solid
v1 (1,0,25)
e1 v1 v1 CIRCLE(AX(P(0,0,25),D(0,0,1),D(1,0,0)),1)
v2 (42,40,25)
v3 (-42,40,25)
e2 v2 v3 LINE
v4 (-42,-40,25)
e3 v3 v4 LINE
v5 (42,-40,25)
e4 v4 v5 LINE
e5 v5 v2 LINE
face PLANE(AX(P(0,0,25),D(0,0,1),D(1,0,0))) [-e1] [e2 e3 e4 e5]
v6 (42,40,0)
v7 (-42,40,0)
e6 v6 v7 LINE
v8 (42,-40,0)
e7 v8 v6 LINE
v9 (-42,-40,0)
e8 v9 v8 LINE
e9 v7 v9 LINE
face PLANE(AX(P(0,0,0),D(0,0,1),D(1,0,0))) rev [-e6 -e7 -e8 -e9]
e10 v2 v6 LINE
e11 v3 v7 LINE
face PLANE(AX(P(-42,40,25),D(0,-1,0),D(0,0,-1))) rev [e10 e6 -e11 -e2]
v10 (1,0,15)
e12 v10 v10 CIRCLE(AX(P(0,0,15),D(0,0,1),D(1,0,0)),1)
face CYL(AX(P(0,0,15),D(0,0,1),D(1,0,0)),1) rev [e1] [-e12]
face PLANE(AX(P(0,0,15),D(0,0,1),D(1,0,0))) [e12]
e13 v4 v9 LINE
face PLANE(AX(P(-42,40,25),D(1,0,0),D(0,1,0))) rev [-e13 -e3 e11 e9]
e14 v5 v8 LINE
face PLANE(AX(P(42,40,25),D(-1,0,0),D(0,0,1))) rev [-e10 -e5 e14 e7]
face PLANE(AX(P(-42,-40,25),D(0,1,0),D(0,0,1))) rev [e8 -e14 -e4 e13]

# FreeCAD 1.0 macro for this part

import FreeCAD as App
import Part
import Sketcher
Q = App.Units.Quantity

doc = App.newDocument("Part")
body = doc.addObject("PartDesign::Body", "Body")

sketch1 = body.newObject("Sketcher::SketchObject", "Sketch")
sketch1.AttachmentSupport = (doc.getObject("XY_Plane"), [""])
sketch1.MapMode = "FlatFace"
sketch1.addGeometry([
    Part.LineSegment(App.Vector(-42, 40, 0), App.Vector(-42, -40, 0)),
    Part.LineSegment(App.Vector(-42, -40, 0), App.Vector(42, -40, 0)),
    Part.LineSegment(App.Vector(42, -40, 0), App.Vector(42, 40, 0)),
    Part.LineSegment(App.Vector(42, 40, 0), App.Vector(-42, 40, 0)),
], False)
sketch1.addConstraint([
    Sketcher.Constraint("Coincident", 0, 2, 1, 1),
    Sketcher.Constraint("Coincident", 1, 2, 2, 1),
    Sketcher.Constraint("Coincident", 2, 2, 3, 1),
    Sketcher.Constraint("Coincident", 3, 2, 0, 1),
    Sketcher.Constraint("Vertical", 0),
    Sketcher.Constraint("Horizontal", 1),
    Sketcher.Constraint("Vertical", 2),
    Sketcher.Constraint("Horizontal", 3),
    Sketcher.Constraint("Symmetric", 0, 2, 2, 2, -1, 1),
    Sketcher.Constraint("DistanceX", 1, 1, 1, 2, Q("84 mm")),
    Sketcher.Constraint("DistanceY", 0, 2, 0, 1, Q("80 mm")),
])
pad1 = body.newObject("PartDesign::Pad", "Pad")
pad1.Profile = sketch1
pad1.Length = 25

sketch2 = body.newObject("Sketcher::SketchObject", "Sketch001")
sketch2.AttachmentSupport = (doc.getObject("XY_Plane"), [""])
sketch2.MapMode = "FlatFace"
sketch2.AttachmentOffset = App.Placement(App.Vector(0, 0, 25), App.Rotation())
sketch2.addGeometry(Part.Circle(App.Vector(0, 0, 0), App.Vector(0, 0, 1), 1), False)
sketch2.addConstraint([
    Sketcher.Constraint("Coincident", 0, 3, -1, 1),
    Sketcher.Constraint("Diameter", 0, Q("2 mm")),
])
pocket1 = body.newObject("PartDesign::Pocket", "Pocket")
pocket1.Profile = sketch2
pocket1.Length = 10

doc.recompute()
